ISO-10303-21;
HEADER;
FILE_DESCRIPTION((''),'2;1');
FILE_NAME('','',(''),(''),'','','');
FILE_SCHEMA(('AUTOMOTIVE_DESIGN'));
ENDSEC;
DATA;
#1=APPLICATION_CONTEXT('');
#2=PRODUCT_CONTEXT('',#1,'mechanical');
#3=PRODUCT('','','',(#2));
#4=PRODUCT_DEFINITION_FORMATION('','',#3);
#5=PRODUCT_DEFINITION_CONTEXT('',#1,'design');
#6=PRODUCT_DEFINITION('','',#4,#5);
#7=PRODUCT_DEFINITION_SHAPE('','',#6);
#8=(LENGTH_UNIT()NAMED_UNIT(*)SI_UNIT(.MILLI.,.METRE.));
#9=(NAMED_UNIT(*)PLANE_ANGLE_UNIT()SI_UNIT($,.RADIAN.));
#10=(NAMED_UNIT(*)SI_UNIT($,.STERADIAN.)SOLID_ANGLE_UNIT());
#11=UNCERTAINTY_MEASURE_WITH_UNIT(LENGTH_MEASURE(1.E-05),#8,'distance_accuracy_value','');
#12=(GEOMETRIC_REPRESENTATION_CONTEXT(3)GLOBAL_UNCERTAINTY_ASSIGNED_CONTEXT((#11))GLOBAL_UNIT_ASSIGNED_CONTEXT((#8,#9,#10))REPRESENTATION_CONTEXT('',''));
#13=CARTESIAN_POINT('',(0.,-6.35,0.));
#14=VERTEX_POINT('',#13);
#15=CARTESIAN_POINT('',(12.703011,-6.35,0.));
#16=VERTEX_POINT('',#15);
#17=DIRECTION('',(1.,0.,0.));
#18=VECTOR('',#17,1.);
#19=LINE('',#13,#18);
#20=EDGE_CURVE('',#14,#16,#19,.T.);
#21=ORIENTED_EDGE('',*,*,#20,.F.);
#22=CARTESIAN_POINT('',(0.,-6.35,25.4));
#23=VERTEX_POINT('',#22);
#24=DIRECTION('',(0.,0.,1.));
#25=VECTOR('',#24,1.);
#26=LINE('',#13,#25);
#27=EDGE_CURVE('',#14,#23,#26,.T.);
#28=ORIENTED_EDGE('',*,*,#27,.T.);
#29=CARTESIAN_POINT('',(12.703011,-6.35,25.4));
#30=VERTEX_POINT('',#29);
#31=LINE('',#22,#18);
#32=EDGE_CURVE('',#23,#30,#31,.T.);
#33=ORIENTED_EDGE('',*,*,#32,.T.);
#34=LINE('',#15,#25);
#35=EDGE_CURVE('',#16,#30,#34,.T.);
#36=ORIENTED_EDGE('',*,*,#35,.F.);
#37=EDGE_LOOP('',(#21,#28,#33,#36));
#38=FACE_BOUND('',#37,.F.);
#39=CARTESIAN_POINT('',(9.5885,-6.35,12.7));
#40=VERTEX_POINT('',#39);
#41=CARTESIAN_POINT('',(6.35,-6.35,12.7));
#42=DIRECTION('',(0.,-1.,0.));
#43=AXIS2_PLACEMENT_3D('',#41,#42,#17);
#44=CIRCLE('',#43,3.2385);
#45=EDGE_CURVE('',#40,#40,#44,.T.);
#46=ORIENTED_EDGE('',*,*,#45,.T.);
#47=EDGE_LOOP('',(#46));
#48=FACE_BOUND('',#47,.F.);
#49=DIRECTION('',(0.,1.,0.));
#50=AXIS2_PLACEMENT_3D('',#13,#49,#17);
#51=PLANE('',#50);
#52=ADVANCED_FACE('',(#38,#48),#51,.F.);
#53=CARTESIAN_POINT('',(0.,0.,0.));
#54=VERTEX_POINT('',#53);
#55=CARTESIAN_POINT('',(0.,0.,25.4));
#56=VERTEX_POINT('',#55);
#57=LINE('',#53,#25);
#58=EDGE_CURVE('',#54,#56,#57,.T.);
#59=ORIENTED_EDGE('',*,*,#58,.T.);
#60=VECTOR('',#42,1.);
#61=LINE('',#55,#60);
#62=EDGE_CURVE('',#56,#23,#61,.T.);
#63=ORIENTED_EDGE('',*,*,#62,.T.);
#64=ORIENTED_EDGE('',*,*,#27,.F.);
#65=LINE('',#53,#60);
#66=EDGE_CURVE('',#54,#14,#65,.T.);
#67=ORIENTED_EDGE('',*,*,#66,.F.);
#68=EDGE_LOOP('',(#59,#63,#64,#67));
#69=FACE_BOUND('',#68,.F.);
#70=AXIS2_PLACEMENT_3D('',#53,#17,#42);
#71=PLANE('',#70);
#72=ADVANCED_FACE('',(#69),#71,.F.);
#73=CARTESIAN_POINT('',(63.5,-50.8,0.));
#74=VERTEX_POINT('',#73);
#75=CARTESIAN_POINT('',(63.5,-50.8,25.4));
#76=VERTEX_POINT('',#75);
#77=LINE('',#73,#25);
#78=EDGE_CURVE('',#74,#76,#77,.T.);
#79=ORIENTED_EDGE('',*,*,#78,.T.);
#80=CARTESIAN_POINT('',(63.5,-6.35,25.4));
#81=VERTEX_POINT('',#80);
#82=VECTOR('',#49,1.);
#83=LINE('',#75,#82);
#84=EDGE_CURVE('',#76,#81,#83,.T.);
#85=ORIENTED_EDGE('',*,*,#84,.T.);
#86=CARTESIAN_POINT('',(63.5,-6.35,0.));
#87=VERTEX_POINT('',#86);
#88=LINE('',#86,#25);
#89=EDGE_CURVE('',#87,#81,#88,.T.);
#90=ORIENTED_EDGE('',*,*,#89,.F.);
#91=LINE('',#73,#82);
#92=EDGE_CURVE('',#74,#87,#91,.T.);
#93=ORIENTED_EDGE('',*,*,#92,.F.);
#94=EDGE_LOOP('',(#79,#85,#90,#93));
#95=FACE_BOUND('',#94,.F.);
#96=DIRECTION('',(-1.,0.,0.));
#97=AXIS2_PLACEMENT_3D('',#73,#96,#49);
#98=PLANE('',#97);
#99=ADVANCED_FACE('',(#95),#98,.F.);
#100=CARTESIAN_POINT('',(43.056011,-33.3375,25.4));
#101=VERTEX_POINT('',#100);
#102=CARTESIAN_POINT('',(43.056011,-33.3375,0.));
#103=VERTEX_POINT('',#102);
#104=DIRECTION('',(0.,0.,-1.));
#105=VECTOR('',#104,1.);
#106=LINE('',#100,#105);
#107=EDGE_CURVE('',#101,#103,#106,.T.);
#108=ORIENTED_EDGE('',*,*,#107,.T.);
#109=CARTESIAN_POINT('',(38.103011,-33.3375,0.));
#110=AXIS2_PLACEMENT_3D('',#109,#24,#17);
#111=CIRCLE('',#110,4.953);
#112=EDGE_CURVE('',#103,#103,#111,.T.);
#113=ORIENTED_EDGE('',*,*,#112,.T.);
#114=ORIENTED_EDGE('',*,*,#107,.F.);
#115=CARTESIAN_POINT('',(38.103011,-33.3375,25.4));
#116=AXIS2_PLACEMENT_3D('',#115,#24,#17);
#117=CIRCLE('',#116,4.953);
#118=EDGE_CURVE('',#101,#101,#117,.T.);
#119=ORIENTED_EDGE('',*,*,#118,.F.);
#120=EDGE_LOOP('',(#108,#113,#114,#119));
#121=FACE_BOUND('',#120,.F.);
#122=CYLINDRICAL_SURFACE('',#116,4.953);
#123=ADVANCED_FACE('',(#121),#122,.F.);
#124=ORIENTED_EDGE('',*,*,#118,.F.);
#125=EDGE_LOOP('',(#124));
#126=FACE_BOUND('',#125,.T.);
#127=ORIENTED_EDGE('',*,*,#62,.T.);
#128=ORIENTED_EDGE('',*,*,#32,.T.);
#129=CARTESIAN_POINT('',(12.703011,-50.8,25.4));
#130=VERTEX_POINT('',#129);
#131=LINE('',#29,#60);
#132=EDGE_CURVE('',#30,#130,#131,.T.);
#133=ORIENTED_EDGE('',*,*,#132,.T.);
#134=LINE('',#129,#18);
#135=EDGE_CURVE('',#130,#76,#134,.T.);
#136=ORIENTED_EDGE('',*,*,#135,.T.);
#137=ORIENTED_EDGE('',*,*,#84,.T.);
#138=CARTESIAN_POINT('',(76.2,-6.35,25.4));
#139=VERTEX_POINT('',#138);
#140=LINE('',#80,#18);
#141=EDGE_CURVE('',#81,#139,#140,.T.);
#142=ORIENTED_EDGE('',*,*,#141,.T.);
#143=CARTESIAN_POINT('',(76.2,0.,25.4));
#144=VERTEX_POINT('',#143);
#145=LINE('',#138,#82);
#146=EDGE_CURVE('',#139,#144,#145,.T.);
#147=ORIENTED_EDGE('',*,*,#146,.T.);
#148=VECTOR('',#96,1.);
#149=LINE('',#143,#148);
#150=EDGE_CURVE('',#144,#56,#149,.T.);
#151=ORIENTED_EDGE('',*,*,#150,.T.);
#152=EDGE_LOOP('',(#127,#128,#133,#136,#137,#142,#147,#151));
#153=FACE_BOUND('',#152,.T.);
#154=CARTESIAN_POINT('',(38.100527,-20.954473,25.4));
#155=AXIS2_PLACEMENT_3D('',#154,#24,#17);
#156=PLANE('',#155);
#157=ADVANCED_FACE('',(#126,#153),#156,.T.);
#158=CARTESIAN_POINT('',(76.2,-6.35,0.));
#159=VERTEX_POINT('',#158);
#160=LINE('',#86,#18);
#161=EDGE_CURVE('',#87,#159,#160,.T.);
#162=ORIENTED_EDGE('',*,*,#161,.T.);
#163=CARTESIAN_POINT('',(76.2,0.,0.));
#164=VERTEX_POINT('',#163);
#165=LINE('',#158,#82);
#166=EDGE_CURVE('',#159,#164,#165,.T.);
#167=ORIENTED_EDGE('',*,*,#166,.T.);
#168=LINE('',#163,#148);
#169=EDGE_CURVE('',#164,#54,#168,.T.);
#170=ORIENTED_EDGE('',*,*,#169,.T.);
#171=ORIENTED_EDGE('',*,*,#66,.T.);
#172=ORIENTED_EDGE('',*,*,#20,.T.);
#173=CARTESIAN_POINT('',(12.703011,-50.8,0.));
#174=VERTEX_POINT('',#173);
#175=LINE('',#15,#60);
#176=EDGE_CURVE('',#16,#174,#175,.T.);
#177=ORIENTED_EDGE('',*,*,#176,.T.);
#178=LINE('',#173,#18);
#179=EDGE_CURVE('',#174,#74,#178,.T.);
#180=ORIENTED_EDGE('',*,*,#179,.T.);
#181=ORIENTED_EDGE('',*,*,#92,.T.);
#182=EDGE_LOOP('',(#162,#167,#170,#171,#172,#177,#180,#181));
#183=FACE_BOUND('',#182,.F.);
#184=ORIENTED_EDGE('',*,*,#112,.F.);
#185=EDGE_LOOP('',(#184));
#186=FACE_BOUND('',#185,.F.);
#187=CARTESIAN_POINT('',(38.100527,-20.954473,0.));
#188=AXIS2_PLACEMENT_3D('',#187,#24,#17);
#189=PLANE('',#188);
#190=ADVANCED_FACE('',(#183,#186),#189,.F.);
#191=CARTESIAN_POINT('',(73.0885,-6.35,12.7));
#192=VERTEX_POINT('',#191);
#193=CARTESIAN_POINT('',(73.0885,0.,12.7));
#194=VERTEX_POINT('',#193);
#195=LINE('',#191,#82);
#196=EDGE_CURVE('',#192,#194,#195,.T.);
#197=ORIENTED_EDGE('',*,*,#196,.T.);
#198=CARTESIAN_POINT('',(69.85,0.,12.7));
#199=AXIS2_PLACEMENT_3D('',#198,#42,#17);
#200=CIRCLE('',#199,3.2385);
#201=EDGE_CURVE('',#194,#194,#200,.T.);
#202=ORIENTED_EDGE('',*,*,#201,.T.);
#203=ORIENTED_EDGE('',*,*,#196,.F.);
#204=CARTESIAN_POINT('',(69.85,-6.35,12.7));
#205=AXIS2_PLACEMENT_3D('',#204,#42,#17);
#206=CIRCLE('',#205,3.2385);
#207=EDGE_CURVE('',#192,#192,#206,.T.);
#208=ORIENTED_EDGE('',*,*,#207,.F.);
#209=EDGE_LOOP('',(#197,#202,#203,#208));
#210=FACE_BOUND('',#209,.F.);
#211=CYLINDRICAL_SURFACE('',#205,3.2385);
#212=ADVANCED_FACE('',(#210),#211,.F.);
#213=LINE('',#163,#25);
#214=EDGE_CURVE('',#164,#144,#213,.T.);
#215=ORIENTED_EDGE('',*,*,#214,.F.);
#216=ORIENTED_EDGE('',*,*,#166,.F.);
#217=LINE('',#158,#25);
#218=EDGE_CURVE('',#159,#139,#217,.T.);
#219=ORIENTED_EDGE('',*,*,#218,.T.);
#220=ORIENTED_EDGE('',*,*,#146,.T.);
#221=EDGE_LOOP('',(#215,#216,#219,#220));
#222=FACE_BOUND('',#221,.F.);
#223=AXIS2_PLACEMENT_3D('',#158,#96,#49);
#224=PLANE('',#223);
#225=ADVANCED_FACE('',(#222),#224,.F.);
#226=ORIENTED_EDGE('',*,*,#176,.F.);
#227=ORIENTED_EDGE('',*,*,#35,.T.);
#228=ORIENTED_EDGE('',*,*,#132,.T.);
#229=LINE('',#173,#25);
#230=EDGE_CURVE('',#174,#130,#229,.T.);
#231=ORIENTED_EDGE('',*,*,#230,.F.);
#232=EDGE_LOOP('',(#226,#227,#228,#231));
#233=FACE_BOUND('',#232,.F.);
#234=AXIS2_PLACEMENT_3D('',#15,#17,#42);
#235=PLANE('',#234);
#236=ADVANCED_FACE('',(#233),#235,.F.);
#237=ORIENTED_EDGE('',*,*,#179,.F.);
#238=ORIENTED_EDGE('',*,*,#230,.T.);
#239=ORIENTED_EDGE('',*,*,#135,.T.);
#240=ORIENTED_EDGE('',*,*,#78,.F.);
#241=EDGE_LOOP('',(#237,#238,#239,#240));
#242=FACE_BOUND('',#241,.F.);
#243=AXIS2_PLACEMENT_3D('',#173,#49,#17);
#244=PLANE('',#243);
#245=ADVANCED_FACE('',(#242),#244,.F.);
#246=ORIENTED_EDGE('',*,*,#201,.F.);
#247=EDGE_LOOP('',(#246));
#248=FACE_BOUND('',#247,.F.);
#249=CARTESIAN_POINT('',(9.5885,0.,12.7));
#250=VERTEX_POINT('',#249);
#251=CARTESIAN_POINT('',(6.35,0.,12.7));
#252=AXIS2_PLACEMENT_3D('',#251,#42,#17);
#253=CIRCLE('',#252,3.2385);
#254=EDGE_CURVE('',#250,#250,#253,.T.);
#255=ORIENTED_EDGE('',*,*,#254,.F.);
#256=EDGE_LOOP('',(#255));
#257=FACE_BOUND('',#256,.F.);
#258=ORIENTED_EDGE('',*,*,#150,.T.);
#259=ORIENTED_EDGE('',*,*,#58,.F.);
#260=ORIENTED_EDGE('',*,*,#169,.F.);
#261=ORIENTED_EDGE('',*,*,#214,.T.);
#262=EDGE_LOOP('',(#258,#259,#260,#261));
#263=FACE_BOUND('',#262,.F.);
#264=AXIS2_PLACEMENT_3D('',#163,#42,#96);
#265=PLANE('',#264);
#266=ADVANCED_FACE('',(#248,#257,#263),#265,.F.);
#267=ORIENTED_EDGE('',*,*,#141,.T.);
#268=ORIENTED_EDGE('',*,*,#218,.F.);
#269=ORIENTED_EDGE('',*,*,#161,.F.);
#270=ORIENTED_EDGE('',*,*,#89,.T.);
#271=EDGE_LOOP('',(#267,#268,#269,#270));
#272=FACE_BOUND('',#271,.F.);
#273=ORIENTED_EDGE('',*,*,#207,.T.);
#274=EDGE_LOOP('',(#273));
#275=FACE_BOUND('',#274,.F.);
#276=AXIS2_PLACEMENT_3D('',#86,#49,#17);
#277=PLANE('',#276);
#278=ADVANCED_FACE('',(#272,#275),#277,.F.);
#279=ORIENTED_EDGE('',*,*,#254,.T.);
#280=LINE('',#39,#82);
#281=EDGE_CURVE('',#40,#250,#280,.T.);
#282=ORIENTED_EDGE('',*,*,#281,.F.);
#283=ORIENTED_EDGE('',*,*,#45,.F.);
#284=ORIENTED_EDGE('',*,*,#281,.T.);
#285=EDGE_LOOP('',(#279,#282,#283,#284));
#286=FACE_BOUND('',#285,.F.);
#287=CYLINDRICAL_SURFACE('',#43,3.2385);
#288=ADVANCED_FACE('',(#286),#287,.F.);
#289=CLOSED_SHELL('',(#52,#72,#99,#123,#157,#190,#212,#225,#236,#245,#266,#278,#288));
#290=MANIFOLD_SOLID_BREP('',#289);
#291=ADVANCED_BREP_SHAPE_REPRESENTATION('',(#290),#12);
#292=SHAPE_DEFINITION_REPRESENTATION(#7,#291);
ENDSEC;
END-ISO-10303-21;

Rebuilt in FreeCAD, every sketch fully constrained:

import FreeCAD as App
import Part
import Sketcher
Q = App.Units.Quantity

doc = App.newDocument("Part")
body = doc.addObject("PartDesign::Body", "Body")

# Sketch on XY plane
sketch1 = body.newObject("Sketcher::SketchObject", "Sketch")
sketch1.AttachmentSupport = (doc.getObject("XY_Plane"), [""])
sketch1.MapMode = "FlatFace"
sketch1.addGeometry([
    Part.LineSegment(App.Vector(76, 0, 0), App.Vector(0, 0, 0)),  # 0
    Part.LineSegment(App.Vector(0, 0, 0), App.Vector(0, -6, 0)),  # 1
    Part.LineSegment(App.Vector(0, -6, 0), App.Vector(13, -6, 0)),  # 2
    Part.LineSegment(App.Vector(13, -6, 0), App.Vector(13, -51, 0)),  # 3
    Part.LineSegment(App.Vector(13, -51, 0), App.Vector(64, -51, 0)),  # 4
    Part.LineSegment(App.Vector(64, -51, 0), App.Vector(64, -6, 0)),  # 5
    Part.LineSegment(App.Vector(64, -6, 0), App.Vector(76, -6, 0)),  # 6
    Part.LineSegment(App.Vector(76, -6, 0), App.Vector(76, 0, 0)),  # 7
], False)
sketch1.addConstraint([
    Sketcher.Constraint("Coincident", 0, 2, 1, 1),
    Sketcher.Constraint("Coincident", 1, 2, 2, 1),
    Sketcher.Constraint("Coincident", 2, 2, 3, 1),
    Sketcher.Constraint("Coincident", 3, 2, 4, 1),
    Sketcher.Constraint("Coincident", 4, 2, 5, 1),
    Sketcher.Constraint("Coincident", 5, 2, 6, 1),
    Sketcher.Constraint("Coincident", 6, 2, 7, 1),
    Sketcher.Constraint("Coincident", 7, 2, 0, 1),
    Sketcher.Constraint("Horizontal", 0),
    Sketcher.Constraint("Vertical", 1),
    Sketcher.Constraint("Horizontal", 2),
    Sketcher.Constraint("Vertical", 3),
    Sketcher.Constraint("Horizontal", 4),
    Sketcher.Constraint("Vertical", 5),
    Sketcher.Constraint("Horizontal", 6),
    Sketcher.Constraint("Vertical", 7),
    Sketcher.Constraint("Coincident", 0, 2, -1, 1),
    Sketcher.Constraint("Horizontal", 2, 2, 5, 2),
    Sketcher.Constraint("DistanceX", 0, 2, 0, 1, Q("3 in")),
    Sketcher.Constraint("DistanceX", 6, 1, 6, 2, Q("0.5 in")),
    Sketcher.Constraint("DistanceY", 3, 2, -1, 1, Q("2 in")),
    Sketcher.Constraint("DistanceY", 1, 2, 1, 1, Q("0.25 in")),
    Sketcher.Constraint("DistanceX", 2, 1, 2, 2, Q("12.703011 mm")),
])
pad1 = body.newObject("PartDesign::Pad", "Pad")
pad1.Profile = sketch1
pad1.Length = Q("1 in")

# Sketch on XZ plane
sketch2 = body.newObject("Sketcher::SketchObject", "Sketch001")
sketch2.AttachmentSupport = (doc.getObject("XZ_Plane"), [""])
sketch2.MapMode = "FlatFace"
sketch2.AttachmentOffset = App.Placement(App.Vector(0, 0, 0.25 * 25.4), App.Rotation())
sketch2.addGeometry(Part.Circle(App.Vector(6.3, 12.7, 0), App.Vector(0, 0, 1), 3.2), False)
sketch2.addConstraint([
    Sketcher.Constraint("Diameter", 0, Q("0.255 in")),
    Sketcher.Constraint("DistanceY", -1, 1, 0, 3, Q("0.5 in")),
    Sketcher.Constraint("DistanceX", -1, 1, 0, 3, Q("0.25 in")),
])
pocket1 = body.newObject("PartDesign::Pocket", "Pocket")
pocket1.Profile = sketch2
pocket1.Length = Q("1 in")

# Sketch on XZ plane
sketch3 = body.newObject("Sketcher::SketchObject", "Sketch002")
sketch3.AttachmentSupport = (doc.getObject("XZ_Plane"), [""])
sketch3.MapMode = "FlatFace"
sketch3.AttachmentOffset = App.Placement(App.Vector(0, 0, 0.25 * 25.4), App.Rotation())
sketch3.addGeometry(Part.Circle(App.Vector(69.8, 12.7, 0), App.Vector(0, 0, 1), 3.2), False)
sketch3.addConstraint([
    Sketcher.Constraint("Diameter", 0, Q("0.255 in")),
    Sketcher.Constraint("DistanceY", -1, 1, 0, 3, Q("0.5 in")),
    Sketcher.Constraint("DistanceX", -1, 1, 0, 3, Q("2.75 in")),
])
pocket2 = body.newObject("PartDesign::Pocket", "Pocket001")
pocket2.Profile = sketch3
pocket2.Length = Q("1 in")

# Sketch on XY plane
sketch4 = body.newObject("Sketcher::SketchObject", "Sketch003")
sketch4.AttachmentSupport = (doc.getObject("XY_Plane"), [""])
sketch4.MapMode = "FlatFace"
sketch4.AttachmentOffset = App.Placement(App.Vector(0, 0, 1 * 25.4), App.Rotation())
sketch4.addGeometry(Part.Circle(App.Vector(38.1, -33.3, 0), App.Vector(0, 0, 1), 5), False)
sketch4.addConstraint([
    Sketcher.Constraint("Diameter", 0, Q("0.39 in")),
    Sketcher.Constraint("DistanceY", 0, 3, -1, 1, Q("1.3125 in")),
    Sketcher.Constraint("DistanceX", -1, 1, 0, 3, Q("38.103011 mm")),
])
pocket3 = body.newObject("PartDesign::Pocket", "Pocket002")
pocket3.Profile = sketch4
pocket3.Length = Q("1 in")

doc.recompute()
